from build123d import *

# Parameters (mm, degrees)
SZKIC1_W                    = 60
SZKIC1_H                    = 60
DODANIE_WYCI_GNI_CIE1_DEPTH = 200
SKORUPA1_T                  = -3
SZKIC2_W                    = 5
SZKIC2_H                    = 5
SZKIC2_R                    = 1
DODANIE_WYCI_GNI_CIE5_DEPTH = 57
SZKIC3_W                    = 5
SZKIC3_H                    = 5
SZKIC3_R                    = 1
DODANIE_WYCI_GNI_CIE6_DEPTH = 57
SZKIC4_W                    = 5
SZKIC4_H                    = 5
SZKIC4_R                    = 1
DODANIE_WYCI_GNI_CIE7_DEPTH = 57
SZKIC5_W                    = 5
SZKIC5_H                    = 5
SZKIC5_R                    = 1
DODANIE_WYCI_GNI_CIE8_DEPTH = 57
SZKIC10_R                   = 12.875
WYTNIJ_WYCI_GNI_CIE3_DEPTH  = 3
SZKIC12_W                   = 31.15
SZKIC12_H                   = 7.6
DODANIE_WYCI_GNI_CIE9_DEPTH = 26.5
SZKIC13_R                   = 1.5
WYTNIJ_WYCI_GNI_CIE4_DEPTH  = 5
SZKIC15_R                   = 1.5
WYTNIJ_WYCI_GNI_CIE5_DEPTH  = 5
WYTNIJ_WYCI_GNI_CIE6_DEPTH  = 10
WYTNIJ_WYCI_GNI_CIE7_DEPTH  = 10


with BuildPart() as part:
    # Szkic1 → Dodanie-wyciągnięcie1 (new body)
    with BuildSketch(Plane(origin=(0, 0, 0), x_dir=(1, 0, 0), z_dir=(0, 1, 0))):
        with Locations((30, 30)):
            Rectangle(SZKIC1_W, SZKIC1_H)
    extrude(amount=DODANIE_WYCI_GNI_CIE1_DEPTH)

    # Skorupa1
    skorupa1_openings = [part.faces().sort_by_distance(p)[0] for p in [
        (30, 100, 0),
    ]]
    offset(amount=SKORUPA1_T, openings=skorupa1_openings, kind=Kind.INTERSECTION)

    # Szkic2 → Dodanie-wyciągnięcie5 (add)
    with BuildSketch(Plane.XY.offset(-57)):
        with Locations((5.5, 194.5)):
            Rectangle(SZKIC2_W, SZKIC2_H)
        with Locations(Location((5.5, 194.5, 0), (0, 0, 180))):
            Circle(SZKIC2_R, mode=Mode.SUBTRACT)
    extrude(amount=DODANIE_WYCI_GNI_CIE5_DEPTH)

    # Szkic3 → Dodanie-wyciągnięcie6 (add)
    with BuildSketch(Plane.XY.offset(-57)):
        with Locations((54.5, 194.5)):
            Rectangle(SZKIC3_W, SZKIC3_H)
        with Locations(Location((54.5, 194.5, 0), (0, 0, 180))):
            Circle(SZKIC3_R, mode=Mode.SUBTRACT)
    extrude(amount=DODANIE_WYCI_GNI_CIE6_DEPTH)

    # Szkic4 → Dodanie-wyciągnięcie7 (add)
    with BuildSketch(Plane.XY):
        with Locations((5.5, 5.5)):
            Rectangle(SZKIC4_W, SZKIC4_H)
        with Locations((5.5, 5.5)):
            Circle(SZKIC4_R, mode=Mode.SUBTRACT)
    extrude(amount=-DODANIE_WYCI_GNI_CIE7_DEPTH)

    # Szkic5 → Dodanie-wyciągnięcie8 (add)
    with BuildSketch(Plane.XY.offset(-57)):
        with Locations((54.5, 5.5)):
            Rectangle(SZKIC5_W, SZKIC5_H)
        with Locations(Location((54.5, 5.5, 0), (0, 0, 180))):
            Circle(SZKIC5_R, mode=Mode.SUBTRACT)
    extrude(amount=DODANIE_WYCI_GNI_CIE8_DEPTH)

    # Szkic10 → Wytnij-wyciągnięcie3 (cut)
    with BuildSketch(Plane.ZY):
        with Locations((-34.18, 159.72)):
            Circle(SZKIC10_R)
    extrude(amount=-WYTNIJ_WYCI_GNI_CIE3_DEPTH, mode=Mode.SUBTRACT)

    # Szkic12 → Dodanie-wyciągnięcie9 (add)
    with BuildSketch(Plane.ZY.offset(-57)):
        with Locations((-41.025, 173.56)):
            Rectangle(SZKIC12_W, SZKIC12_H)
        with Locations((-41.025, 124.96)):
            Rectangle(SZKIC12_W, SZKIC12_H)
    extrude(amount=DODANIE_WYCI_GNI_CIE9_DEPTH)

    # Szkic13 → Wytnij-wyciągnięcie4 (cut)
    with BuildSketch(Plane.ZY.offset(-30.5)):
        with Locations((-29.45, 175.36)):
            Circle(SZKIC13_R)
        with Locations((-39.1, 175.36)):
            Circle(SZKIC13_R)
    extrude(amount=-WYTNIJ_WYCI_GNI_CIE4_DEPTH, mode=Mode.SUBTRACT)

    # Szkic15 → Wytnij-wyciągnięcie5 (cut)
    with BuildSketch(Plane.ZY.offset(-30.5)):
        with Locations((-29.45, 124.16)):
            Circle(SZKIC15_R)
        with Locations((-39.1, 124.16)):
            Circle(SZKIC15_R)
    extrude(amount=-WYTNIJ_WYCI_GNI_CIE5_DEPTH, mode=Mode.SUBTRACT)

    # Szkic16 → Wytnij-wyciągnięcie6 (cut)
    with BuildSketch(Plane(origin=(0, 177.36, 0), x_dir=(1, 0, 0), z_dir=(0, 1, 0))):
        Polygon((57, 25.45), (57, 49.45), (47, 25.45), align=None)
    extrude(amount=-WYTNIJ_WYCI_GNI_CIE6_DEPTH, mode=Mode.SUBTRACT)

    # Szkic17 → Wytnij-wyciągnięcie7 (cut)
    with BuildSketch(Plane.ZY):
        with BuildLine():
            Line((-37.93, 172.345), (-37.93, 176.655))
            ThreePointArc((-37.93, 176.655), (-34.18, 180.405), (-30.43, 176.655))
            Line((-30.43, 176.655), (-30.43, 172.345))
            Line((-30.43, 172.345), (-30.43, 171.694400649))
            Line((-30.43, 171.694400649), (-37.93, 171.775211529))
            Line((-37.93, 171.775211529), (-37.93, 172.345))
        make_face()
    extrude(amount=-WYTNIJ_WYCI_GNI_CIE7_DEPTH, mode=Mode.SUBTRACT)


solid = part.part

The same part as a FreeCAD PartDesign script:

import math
import FreeCAD as App
import Part
import Sketcher
Q = App.Units.Quantity


def faces_at(feature, points):
    """Names of the faces that lie closest to the given points."""
    faces = feature.Shape.Faces
    near = lambda p: min(range(len(faces)), key=lambda i: faces[i].distToShape(Part.Vertex(*p))[0])
    return sorted({f"Face{near(p) + 1}" for p in points})

doc = App.newDocument("Part")
body = doc.addObject("PartDesign::Body", "Body")

# Sketch on XZ plane
sketch1 = body.newObject("Sketcher::SketchObject", "Sketch")
sketch1.AttachmentSupport = (doc.getObject("XZ_Plane"), [""])
sketch1.MapMode = "FlatFace"
sketch1.addGeometry(Part.LineSegment(App.Vector(0, -60, 0), App.Vector(0, 0, 0)), False)
sketch1.addGeometry(Part.LineSegment(App.Vector(0, 0, 0), App.Vector(60, 0, 0)), False)
sketch1.addGeometry(Part.LineSegment(App.Vector(60, 0, 0), App.Vector(60, -60, 0)), False)
sketch1.addGeometry(Part.LineSegment(App.Vector(60, -60, 0), App.Vector(0, -60, 0)), False)
sketch1.addConstraint(Sketcher.Constraint("Coincident", 0, 2, 1, 1))
sketch1.addConstraint(Sketcher.Constraint("Coincident", 1, 2, 2, 1))
sketch1.addConstraint(Sketcher.Constraint("Coincident", 2, 2, 3, 1))
sketch1.addConstraint(Sketcher.Constraint("Coincident", 3, 2, 0, 1))
sketch1.addConstraint(Sketcher.Constraint("Vertical", 0))
sketch1.addConstraint(Sketcher.Constraint("Horizontal", 1))
sketch1.addConstraint(Sketcher.Constraint("Vertical", 2))
sketch1.addConstraint(Sketcher.Constraint("Horizontal", 3))
sketch1.addConstraint(Sketcher.Constraint("Coincident", 0, 2, -1, 1))
sketch1.addConstraint(Sketcher.Constraint("Equal", 3, 0))
sketch1.addConstraint(Sketcher.Constraint("DistanceX", 1, 1, 1, 2, Q("60 mm")))
pad1 = body.newObject("PartDesign::Pad", "Pad")
pad1.Profile = sketch1
pad1.Length = 200
pad1.Reversed = True
doc.recompute()

thickness = body.newObject("PartDesign::Thickness", "Thickness")
thickness.Base = (pad1, faces_at(pad1, [(30, 100, 0)]))
thickness.Value = 3
thickness.Reversed = True
thickness.Join = "Intersection"

# Sketch on XY plane
sketch2 = body.newObject("Sketcher::SketchObject", "Sketch001")
sketch2.AttachmentSupport = (doc.getObject("XY_Plane"), [""])
sketch2.MapMode = "FlatFace"
sketch2.AttachmentOffset = App.Placement(App.Vector(0, 0, -57), App.Rotation())
sketch2.addGeometry(Part.LineSegment(App.Vector(3, 197, 0), App.Vector(3, 192, 0)), False)
sketch2.addGeometry(Part.LineSegment(App.Vector(3, 192, 0), App.Vector(8, 192, 0)), False)
sketch2.addGeometry(Part.LineSegment(App.Vector(8, 192, 0), App.Vector(8, 197, 0)), False)
sketch2.addGeometry(Part.LineSegment(App.Vector(8, 197, 0), App.Vector(3, 197, 0)), False)
sketch2.addGeometry(Part.Circle(App.Vector(5.5, 194.5, 0), App.Vector(0, 0, 1), 1), False)
sketch2.addConstraint(Sketcher.Constraint("Coincident", 0, 2, 1, 1))
sketch2.addConstraint(Sketcher.Constraint("Coincident", 1, 2, 2, 1))
sketch2.addConstraint(Sketcher.Constraint("Coincident", 2, 2, 3, 1))
sketch2.addConstraint(Sketcher.Constraint("Coincident", 3, 2, 0, 1))
sketch2.addConstraint(Sketcher.Constraint("Vertical", 0))
sketch2.addConstraint(Sketcher.Constraint("Horizontal", 1))
sketch2.addConstraint(Sketcher.Constraint("Vertical", 2))
sketch2.addConstraint(Sketcher.Constraint("Horizontal", 3))
sketch2.addConstraint(Sketcher.Constraint("Equal", 3, 0))
sketch2.addConstraint(Sketcher.Constraint("Diameter", 4, Q("2 mm")))
sketch2.addConstraint(Sketcher.Constraint("DistanceX", 1, 1, 1, 2, Q("5 mm")))
sketch2.addConstraint(Sketcher.Constraint("DistanceX", -1, 1, 0, 2, Q("3 mm")))
sketch2.addConstraint(Sketcher.Constraint("DistanceY", -1, 1, 0, 2, Q("192 mm")))
sketch2.addConstraint(Sketcher.Constraint("DistanceX", -1, 1, 4, 3, Q("5.5 mm")))
sketch2.addConstraint(Sketcher.Constraint("DistanceY", -1, 1, 4, 3, Q("194.5 mm")))
pad2 = body.newObject("PartDesign::Pad", "Pad001")
pad2.Profile = sketch2
pad2.Length = 57

# Sketch on XY plane
sketch3 = body.newObject("Sketcher::SketchObject", "Sketch002")
sketch3.AttachmentSupport = (doc.getObject("XY_Plane"), [""])
sketch3.MapMode = "FlatFace"
sketch3.AttachmentOffset = App.Placement(App.Vector(0, 0, -57), App.Rotation())
sketch3.addGeometry(Part.LineSegment(App.Vector(52, 197, 0), App.Vector(52, 192, 0)), False)
sketch3.addGeometry(Part.LineSegment(App.Vector(52, 192, 0), App.Vector(57, 192, 0)), False)
sketch3.addGeometry(Part.LineSegment(App.Vector(57, 192, 0), App.Vector(57, 197, 0)), False)
sketch3.addGeometry(Part.LineSegment(App.Vector(57, 197, 0), App.Vector(52, 197, 0)), False)
sketch3.addGeometry(Part.Circle(App.Vector(54.5, 194.5, 0), App.Vector(0, 0, 1), 1), False)
sketch3.addConstraint(Sketcher.Constraint("Coincident", 0, 2, 1, 1))
sketch3.addConstraint(Sketcher.Constraint("Coincident", 1, 2, 2, 1))
sketch3.addConstraint(Sketcher.Constraint("Coincident", 2, 2, 3, 1))
sketch3.addConstraint(Sketcher.Constraint("Coincident", 3, 2, 0, 1))
sketch3.addConstraint(Sketcher.Constraint("Vertical", 0))
sketch3.addConstraint(Sketcher.Constraint("Horizontal", 1))
sketch3.addConstraint(Sketcher.Constraint("Vertical", 2))
sketch3.addConstraint(Sketcher.Constraint("Horizontal", 3))
sketch3.addConstraint(Sketcher.Constraint("Equal", 3, 0))
sketch3.addConstraint(Sketcher.Constraint("Diameter", 4, Q("2 mm")))
sketch3.addConstraint(Sketcher.Constraint("DistanceX", 1, 1, 1, 2, Q("5 mm")))
sketch3.addConstraint(Sketcher.Constraint("DistanceX", -1, 1, 0, 2, Q("52 mm")))
sketch3.addConstraint(Sketcher.Constraint("DistanceY", -1, 1, 0, 2, Q("192 mm")))
sketch3.addConstraint(Sketcher.Constraint("DistanceX", -1, 1, 4, 3, Q("54.5 mm")))
sketch3.addConstraint(Sketcher.Constraint("DistanceY", -1, 1, 4, 3, Q("194.5 mm")))
pad3 = body.newObject("PartDesign::Pad", "Pad002")
pad3.Profile = sketch3
pad3.Length = 57

# Sketch on XY plane
sketch4 = body.newObject("Sketcher::SketchObject", "Sketch003")
sketch4.AttachmentSupport = (doc.getObject("XY_Plane"), [""])
sketch4.MapMode = "FlatFace"
sketch4.addGeometry(Part.LineSegment(App.Vector(3, 8, 0), App.Vector(3, 3, 0)), False)
sketch4.addGeometry(Part.LineSegment(App.Vector(3, 3, 0), App.Vector(8, 3, 0)), False)
sketch4.addGeometry(Part.LineSegment(App.Vector(8, 3, 0), App.Vector(8, 8, 0)), False)
sketch4.addGeometry(Part.LineSegment(App.Vector(8, 8, 0), App.Vector(3, 8, 0)), False)
sketch4.addGeometry(Part.Circle(App.Vector(5.5, 5.5, 0), App.Vector(0, 0, 1), 1), False)
sketch4.addConstraint(Sketcher.Constraint("Coincident", 0, 2, 1, 1))
sketch4.addConstraint(Sketcher.Constraint("Coincident", 1, 2, 2, 1))
sketch4.addConstraint(Sketcher.Constraint("Coincident", 2, 2, 3, 1))
sketch4.addConstraint(Sketcher.Constraint("Coincident", 3, 2, 0, 1))
sketch4.addConstraint(Sketcher.Constraint("Vertical", 0))
sketch4.addConstraint(Sketcher.Constraint("Horizontal", 1))
sketch4.addConstraint(Sketcher.Constraint("Vertical", 2))
sketch4.addConstraint(Sketcher.Constraint("Horizontal", 3))
sketch4.addConstraint(Sketcher.Constraint("Equal", 3, 0))
sketch4.addConstraint(Sketcher.Constraint("Diameter", 4, Q("2 mm")))
sketch4.addConstraint(Sketcher.Constraint("DistanceX", 1, 1, 1, 2, Q("5 mm")))
sketch4.addConstraint(Sketcher.Constraint("DistanceX", -1, 1, 0, 2, Q("3 mm")))
sketch4.addConstraint(Sketcher.Constraint("DistanceY", -1, 1, 0, 2, Q("3 mm")))
sketch4.addConstraint(Sketcher.Constraint("DistanceX", -1, 1, 4, 3, Q("5.5 mm")))
sketch4.addConstraint(Sketcher.Constraint("DistanceY", -1, 1, 4, 3, Q("5.5 mm")))
pad4 = body.newObject("PartDesign::Pad", "Pad003")
pad4.Profile = sketch4
pad4.Length = 57
pad4.Reversed = True

# Sketch on XY plane
sketch5 = body.newObject("Sketcher::SketchObject", "Sketch004")
sketch5.AttachmentSupport = (doc.getObject("XY_Plane"), [""])
sketch5.MapMode = "FlatFace"
sketch5.AttachmentOffset = App.Placement(App.Vector(0, 0, -57), App.Rotation())
sketch5.addGeometry(Part.LineSegment(App.Vector(52, 8, 0), App.Vector(52, 3, 0)), False)
sketch5.addGeometry(Part.LineSegment(App.Vector(52, 3, 0), App.Vector(57, 3, 0)), False)
sketch5.addGeometry(Part.LineSegment(App.Vector(57, 3, 0), App.Vector(57, 8, 0)), False)
sketch5.addGeometry(Part.LineSegment(App.Vector(57, 8, 0), App.Vector(52, 8, 0)), False)
sketch5.addGeometry(Part.Circle(App.Vector(54.5, 5.5, 0), App.Vector(0, 0, 1), 1), False)
sketch5.addConstraint(Sketcher.Constraint("Coincident", 0, 2, 1, 1))
sketch5.addConstraint(Sketcher.Constraint("Coincident", 1, 2, 2, 1))
sketch5.addConstraint(Sketcher.Constraint("Coincident", 2, 2, 3, 1))
sketch5.addConstraint(Sketcher.Constraint("Coincident", 3, 2, 0, 1))
sketch5.addConstraint(Sketcher.Constraint("Vertical", 0))
sketch5.addConstraint(Sketcher.Constraint("Horizontal", 1))
sketch5.addConstraint(Sketcher.Constraint("Vertical", 2))
sketch5.addConstraint(Sketcher.Constraint("Horizontal", 3))
sketch5.addConstraint(Sketcher.Constraint("Equal", 3, 0))
sketch5.addConstraint(Sketcher.Constraint("Diameter", 4, Q("2 mm")))
sketch5.addConstraint(Sketcher.Constraint("DistanceX", 1, 1, 1, 2, Q("5 mm")))
sketch5.addConstraint(Sketcher.Constraint("DistanceX", -1, 1, 0, 2, Q("52 mm")))
sketch5.addConstraint(Sketcher.Constraint("DistanceY", -1, 1, 0, 2, Q("3 mm")))
sketch5.addConstraint(Sketcher.Constraint("DistanceX", -1, 1, 4, 3, Q("54.5 mm")))
sketch5.addConstraint(Sketcher.Constraint("DistanceY", -1, 1, 4, 3, Q("5.5 mm")))
pad5 = body.newObject("PartDesign::Pad", "Pad004")
pad5.Profile = sketch5
pad5.Length = 57

# Sketch on YZ plane
sketch6 = body.newObject("Sketcher::SketchObject", "Sketch005")
sketch6.AttachmentSupport = (doc.getObject("YZ_Plane"), [""])
sketch6.MapMode = "FlatFace"
sketch6.addGeometry(Part.Circle(App.Vector(160, -34, 0), App.Vector(0, 0, 1), 13), False)
sketch6.addConstraint(Sketcher.Constraint("Diameter", 0, Q("25.75 mm")))
sketch6.addConstraint(Sketcher.Constraint("DistanceX", -1, 1, 0, 3, Q("159.72 mm")))
sketch6.addConstraint(Sketcher.Constraint("DistanceY", 0, 3, -1, 1, Q("34.18 mm")))
pocket1 = body.newObject("PartDesign::Pocket", "Pocket")
pocket1.Profile = sketch6
pocket1.Length = 3
pocket1.Reversed = True

# Sketch on YZ plane
sketch7 = body.newObject("Sketcher::SketchObject", "Sketch006")
sketch7.AttachmentSupport = (doc.getObject("YZ_Plane"), [""])
sketch7.MapMode = "FlatFace"
sketch7.AttachmentOffset = App.Placement(App.Vector(0, 0, 57), App.Rotation())
sketch7.addGeometry(Part.LineSegment(App.Vector(177, -57, 0), App.Vector(170, -57, 0)), False)
sketch7.addGeometry(Part.LineSegment(App.Vector(170, -57, 0), App.Vector(170, -25, 0)), False)
sketch7.addGeometry(Part.LineSegment(App.Vector(170, -25, 0), App.Vector(177, -25, 0)), False)
sketch7.addGeometry(Part.LineSegment(App.Vector(177, -25, 0), App.Vector(177, -57, 0)), False)
sketch7.addGeometry(Part.LineSegment(App.Vector(129, -57, 0), App.Vector(121, -57, 0)), False)
sketch7.addGeometry(Part.LineSegment(App.Vector(121, -57, 0), App.Vector(121, -25, 0)), False)
sketch7.addGeometry(Part.LineSegment(App.Vector(121, -25, 0), App.Vector(129, -25, 0)), False)
sketch7.addGeometry(Part.LineSegment(App.Vector(129, -25, 0), App.Vector(129, -57, 0)), False)
sketch7.addConstraint(Sketcher.Constraint("Coincident", 0, 2, 1, 1))
sketch7.addConstraint(Sketcher.Constraint("Coincident", 1, 2, 2, 1))
sketch7.addConstraint(Sketcher.Constraint("Coincident", 2, 2, 3, 1))
sketch7.addConstraint(Sketcher.Constraint("Coincident", 3, 2, 0, 1))
sketch7.addConstraint(Sketcher.Constraint("Coincident", 4, 2, 5, 1))
sketch7.addConstraint(Sketcher.Constraint("Coincident", 5, 2, 6, 1))
sketch7.addConstraint(Sketcher.Constraint("Coincident", 6, 2, 7, 1))
sketch7.addConstraint(Sketcher.Constraint("Coincident", 7, 2, 4, 1))
sketch7.addConstraint(Sketcher.Constraint("Horizontal", 0))
sketch7.addConstraint(Sketcher.Constraint("Vertical", 1))
sketch7.addConstraint(Sketcher.Constraint("Horizontal", 2))
sketch7.addConstraint(Sketcher.Constraint("Vertical", 3))
sketch7.addConstraint(Sketcher.Constraint("Horizontal", 4))
sketch7.addConstraint(Sketcher.Constraint("Vertical", 5))
sketch7.addConstraint(Sketcher.Constraint("Horizontal", 6))
sketch7.addConstraint(Sketcher.Constraint("Vertical", 7))
sketch7.addConstraint(Sketcher.Constraint("Horizontal", 3, 2, 4, 2))
sketch7.addConstraint(Sketcher.Constraint("Horizontal", 2, 2, 5, 2))
sketch7.addConstraint(Sketcher.Constraint("Equal", 2, 4))
sketch7.addConstraint(Sketcher.Constraint("DistanceX", 0, 2, 0, 1, Q("7.6 mm")))
sketch7.addConstraint(Sketcher.Constraint("DistanceX", 6, 2, 1, 2, Q("41 mm")))
sketch7.addConstraint(Sketcher.Constraint("DistanceY", 1, 1, 1, 2, Q("31.15 mm")))
sketch7.addConstraint(Sketcher.Constraint("DistanceY", 0, 2, -1, 1, Q("56.6 mm")))
sketch7.addConstraint(Sketcher.Constraint("DistanceX", -1, 1, 0, 2, Q("169.76 mm")))
pad6 = body.newObject("PartDesign::Pad", "Pad005")
pad6.Profile = sketch7
pad6.Length = 26.5
pad6.Reversed = True

# Sketch on YZ plane
sketch8 = body.newObject("Sketcher::SketchObject", "Sketch007")
sketch8.AttachmentSupport = (doc.getObject("YZ_Plane"), [""])
sketch8.MapMode = "FlatFace"
sketch8.AttachmentOffset = App.Placement(App.Vector(0, 0, 30.5), App.Rotation())
sketch8.addGeometry(Part.Circle(App.Vector(175.4, -29.4, 0), App.Vector(0, 0, 1), 1.5), False)
sketch8.addGeometry(Part.Circle(App.Vector(175.4, -39.1, 0), App.Vector(0, 0, 1), 1.5), False)
sketch8.addConstraint(Sketcher.Constraint("Equal", 0, 1))
sketch8.addConstraint(Sketcher.Constraint("Vertical", 0, 3, 1, 3))
sketch8.addConstraint(Sketcher.Constraint("Diameter", 0, Q("3 mm")))
sketch8.addConstraint(Sketcher.Constraint("DistanceY", 1, 3, -1, 1, Q("39.1 mm")))
sketch8.addConstraint(Sketcher.Constraint("DistanceX", -1, 1, 0, 3, Q("175.36 mm")))
sketch8.addConstraint(Sketcher.Constraint("DistanceY", 0, 3, -1, 1, Q("29.45 mm")))
pocket2 = body.newObject("PartDesign::Pocket", "Pocket001")
pocket2.Profile = sketch8
pocket2.Length = 5
pocket2.Reversed = True

# Sketch on YZ plane
sketch9 = body.newObject("Sketcher::SketchObject", "Sketch008")
sketch9.AttachmentSupport = (doc.getObject("YZ_Plane"), [""])
sketch9.MapMode = "FlatFace"
sketch9.AttachmentOffset = App.Placement(App.Vector(0, 0, 30.5), App.Rotation())
sketch9.addGeometry(Part.Circle(App.Vector(124.2, -29.4, 0), App.Vector(0, 0, 1), 1.5), False)
sketch9.addGeometry(Part.Circle(App.Vector(124.2, -39.1, 0), App.Vector(0, 0, 1), 1.5), False)
sketch9.addConstraint(Sketcher.Constraint("Equal", 0, 1))
sketch9.addConstraint(Sketcher.Constraint("Vertical", 0, 3, 1, 3))
sketch9.addConstraint(Sketcher.Constraint("Diameter", 0, Q("3 mm")))
sketch9.addConstraint(Sketcher.Constraint("DistanceY", 1, 3, -1, 1, Q("39.1 mm")))
sketch9.addConstraint(Sketcher.Constraint("DistanceX", -1, 1, 0, 3, Q("124.16 mm")))
sketch9.addConstraint(Sketcher.Constraint("DistanceY", 0, 3, -1, 1, Q("29.45 mm")))
pocket3 = body.newObject("PartDesign::Pocket", "Pocket002")
pocket3.Profile = sketch9
pocket3.Length = 5
pocket3.Reversed = True

# Sketch on XZ plane
sketch10 = body.newObject("Sketcher::SketchObject", "Sketch009")
sketch10.AttachmentSupport = (doc.getObject("XZ_Plane"), [""])
sketch10.MapMode = "FlatFace"
sketch10.AttachmentOffset = App.Placement(App.Vector(0, 0, -177.36), App.Rotation())
sketch10.addGeometry(Part.LineSegment(App.Vector(57, -25, 0), App.Vector(57, -49, 0)), False)
sketch10.addGeometry(Part.LineSegment(App.Vector(57, -49, 0), App.Vector(47, -25, 0)), False)
sketch10.addGeometry(Part.LineSegment(App.Vector(47, -25, 0), App.Vector(57, -25, 0)), False)
sketch10.addConstraint(Sketcher.Constraint("Coincident", 0, 2, 1, 1))
sketch10.addConstraint(Sketcher.Constraint("Coincident", 1, 2, 2, 1))
sketch10.addConstraint(Sketcher.Constraint("Coincident", 2, 2, 0, 1))
sketch10.addConstraint(Sketcher.Constraint("Vertical", 0))
sketch10.addConstraint(Sketcher.Constraint("Horizontal", 2))
sketch10.addConstraint(Sketcher.Constraint("DistanceX", 2, 1, 2, 2, Q("10 mm")))
sketch10.addConstraint(Sketcher.Constraint("DistanceY", 0, 2, 0, 1, Q("24 mm")))
sketch10.addConstraint(Sketcher.Constraint("DistanceX", -1, 1, 0, 2, Q("57 mm")))
sketch10.addConstraint(Sketcher.Constraint("DistanceY", 0, 2, -1, 1, Q("49.45 mm")))
pocket4 = body.newObject("PartDesign::Pocket", "Pocket003")
pocket4.Profile = sketch10
pocket4.Length = 10
pocket4.Reversed = True

# Sketch on YZ plane
sketch11 = body.newObject("Sketcher::SketchObject", "Sketch010")
sketch11.AttachmentSupport = (doc.getObject("YZ_Plane"), [""])
sketch11.MapMode = "FlatFace"
sketch11.addGeometry(Part.ArcOfCircle(Part.Circle(App.Vector(176.7, -34.2, 0), App.Vector(0, 0, 1), 3.8), math.radians(-90), math.radians(90)), False)
sketch11.addGeometry(Part.LineSegment(App.Vector(176.7, -37.9, 0), App.Vector(171.8, -37.9, 0)), False)
sketch11.addGeometry(Part.LineSegment(App.Vector(171.8, -37.9, 0), App.Vector(171.7, -30.4, 0)), False)
sketch11.addGeometry(Part.LineSegment(App.Vector(171.7, -30.4, 0), App.Vector(176.7, -30.4, 0)), False)
sketch11.addConstraint(Sketcher.Constraint("Tangent", 0, 1, 1, 1))
sketch11.addConstraint(Sketcher.Constraint("Coincident", 1, 2, 2, 1))
sketch11.addConstraint(Sketcher.Constraint("Coincident", 2, 2, 3, 1))
sketch11.addConstraint(Sketcher.Constraint("Tangent", 3, 2, 0, 2))
sketch11.addConstraint(Sketcher.Constraint("Horizontal", 1))
sketch11.addConstraint(Sketcher.Constraint("Horizontal", 3))
sketch11.addConstraint(Sketcher.Constraint("Radius", 0, Q("3.75 mm")))
sketch11.addConstraint(Sketcher.Constraint("DistanceY", 0, 3, -1, 1, Q("34.18 mm")))
sketch11.addConstraint(Sketcher.Constraint("DistanceX", 3, 1, 3, 2, Q("4.960599 mm")))
sketch11.addConstraint(Sketcher.Constraint("DistanceX", -1, 1, 0, 3, Q("176.655 mm")))
sketch11.addConstraint(Sketcher.Constraint("DistanceX", 1, 2, 1, 1, Q("4.879788 mm")))
pocket5 = body.newObject("PartDesign::Pocket", "Pocket004")
pocket5.Profile = sketch11
pocket5.Length = 10
pocket5.Reversed = True

doc.recompute()
